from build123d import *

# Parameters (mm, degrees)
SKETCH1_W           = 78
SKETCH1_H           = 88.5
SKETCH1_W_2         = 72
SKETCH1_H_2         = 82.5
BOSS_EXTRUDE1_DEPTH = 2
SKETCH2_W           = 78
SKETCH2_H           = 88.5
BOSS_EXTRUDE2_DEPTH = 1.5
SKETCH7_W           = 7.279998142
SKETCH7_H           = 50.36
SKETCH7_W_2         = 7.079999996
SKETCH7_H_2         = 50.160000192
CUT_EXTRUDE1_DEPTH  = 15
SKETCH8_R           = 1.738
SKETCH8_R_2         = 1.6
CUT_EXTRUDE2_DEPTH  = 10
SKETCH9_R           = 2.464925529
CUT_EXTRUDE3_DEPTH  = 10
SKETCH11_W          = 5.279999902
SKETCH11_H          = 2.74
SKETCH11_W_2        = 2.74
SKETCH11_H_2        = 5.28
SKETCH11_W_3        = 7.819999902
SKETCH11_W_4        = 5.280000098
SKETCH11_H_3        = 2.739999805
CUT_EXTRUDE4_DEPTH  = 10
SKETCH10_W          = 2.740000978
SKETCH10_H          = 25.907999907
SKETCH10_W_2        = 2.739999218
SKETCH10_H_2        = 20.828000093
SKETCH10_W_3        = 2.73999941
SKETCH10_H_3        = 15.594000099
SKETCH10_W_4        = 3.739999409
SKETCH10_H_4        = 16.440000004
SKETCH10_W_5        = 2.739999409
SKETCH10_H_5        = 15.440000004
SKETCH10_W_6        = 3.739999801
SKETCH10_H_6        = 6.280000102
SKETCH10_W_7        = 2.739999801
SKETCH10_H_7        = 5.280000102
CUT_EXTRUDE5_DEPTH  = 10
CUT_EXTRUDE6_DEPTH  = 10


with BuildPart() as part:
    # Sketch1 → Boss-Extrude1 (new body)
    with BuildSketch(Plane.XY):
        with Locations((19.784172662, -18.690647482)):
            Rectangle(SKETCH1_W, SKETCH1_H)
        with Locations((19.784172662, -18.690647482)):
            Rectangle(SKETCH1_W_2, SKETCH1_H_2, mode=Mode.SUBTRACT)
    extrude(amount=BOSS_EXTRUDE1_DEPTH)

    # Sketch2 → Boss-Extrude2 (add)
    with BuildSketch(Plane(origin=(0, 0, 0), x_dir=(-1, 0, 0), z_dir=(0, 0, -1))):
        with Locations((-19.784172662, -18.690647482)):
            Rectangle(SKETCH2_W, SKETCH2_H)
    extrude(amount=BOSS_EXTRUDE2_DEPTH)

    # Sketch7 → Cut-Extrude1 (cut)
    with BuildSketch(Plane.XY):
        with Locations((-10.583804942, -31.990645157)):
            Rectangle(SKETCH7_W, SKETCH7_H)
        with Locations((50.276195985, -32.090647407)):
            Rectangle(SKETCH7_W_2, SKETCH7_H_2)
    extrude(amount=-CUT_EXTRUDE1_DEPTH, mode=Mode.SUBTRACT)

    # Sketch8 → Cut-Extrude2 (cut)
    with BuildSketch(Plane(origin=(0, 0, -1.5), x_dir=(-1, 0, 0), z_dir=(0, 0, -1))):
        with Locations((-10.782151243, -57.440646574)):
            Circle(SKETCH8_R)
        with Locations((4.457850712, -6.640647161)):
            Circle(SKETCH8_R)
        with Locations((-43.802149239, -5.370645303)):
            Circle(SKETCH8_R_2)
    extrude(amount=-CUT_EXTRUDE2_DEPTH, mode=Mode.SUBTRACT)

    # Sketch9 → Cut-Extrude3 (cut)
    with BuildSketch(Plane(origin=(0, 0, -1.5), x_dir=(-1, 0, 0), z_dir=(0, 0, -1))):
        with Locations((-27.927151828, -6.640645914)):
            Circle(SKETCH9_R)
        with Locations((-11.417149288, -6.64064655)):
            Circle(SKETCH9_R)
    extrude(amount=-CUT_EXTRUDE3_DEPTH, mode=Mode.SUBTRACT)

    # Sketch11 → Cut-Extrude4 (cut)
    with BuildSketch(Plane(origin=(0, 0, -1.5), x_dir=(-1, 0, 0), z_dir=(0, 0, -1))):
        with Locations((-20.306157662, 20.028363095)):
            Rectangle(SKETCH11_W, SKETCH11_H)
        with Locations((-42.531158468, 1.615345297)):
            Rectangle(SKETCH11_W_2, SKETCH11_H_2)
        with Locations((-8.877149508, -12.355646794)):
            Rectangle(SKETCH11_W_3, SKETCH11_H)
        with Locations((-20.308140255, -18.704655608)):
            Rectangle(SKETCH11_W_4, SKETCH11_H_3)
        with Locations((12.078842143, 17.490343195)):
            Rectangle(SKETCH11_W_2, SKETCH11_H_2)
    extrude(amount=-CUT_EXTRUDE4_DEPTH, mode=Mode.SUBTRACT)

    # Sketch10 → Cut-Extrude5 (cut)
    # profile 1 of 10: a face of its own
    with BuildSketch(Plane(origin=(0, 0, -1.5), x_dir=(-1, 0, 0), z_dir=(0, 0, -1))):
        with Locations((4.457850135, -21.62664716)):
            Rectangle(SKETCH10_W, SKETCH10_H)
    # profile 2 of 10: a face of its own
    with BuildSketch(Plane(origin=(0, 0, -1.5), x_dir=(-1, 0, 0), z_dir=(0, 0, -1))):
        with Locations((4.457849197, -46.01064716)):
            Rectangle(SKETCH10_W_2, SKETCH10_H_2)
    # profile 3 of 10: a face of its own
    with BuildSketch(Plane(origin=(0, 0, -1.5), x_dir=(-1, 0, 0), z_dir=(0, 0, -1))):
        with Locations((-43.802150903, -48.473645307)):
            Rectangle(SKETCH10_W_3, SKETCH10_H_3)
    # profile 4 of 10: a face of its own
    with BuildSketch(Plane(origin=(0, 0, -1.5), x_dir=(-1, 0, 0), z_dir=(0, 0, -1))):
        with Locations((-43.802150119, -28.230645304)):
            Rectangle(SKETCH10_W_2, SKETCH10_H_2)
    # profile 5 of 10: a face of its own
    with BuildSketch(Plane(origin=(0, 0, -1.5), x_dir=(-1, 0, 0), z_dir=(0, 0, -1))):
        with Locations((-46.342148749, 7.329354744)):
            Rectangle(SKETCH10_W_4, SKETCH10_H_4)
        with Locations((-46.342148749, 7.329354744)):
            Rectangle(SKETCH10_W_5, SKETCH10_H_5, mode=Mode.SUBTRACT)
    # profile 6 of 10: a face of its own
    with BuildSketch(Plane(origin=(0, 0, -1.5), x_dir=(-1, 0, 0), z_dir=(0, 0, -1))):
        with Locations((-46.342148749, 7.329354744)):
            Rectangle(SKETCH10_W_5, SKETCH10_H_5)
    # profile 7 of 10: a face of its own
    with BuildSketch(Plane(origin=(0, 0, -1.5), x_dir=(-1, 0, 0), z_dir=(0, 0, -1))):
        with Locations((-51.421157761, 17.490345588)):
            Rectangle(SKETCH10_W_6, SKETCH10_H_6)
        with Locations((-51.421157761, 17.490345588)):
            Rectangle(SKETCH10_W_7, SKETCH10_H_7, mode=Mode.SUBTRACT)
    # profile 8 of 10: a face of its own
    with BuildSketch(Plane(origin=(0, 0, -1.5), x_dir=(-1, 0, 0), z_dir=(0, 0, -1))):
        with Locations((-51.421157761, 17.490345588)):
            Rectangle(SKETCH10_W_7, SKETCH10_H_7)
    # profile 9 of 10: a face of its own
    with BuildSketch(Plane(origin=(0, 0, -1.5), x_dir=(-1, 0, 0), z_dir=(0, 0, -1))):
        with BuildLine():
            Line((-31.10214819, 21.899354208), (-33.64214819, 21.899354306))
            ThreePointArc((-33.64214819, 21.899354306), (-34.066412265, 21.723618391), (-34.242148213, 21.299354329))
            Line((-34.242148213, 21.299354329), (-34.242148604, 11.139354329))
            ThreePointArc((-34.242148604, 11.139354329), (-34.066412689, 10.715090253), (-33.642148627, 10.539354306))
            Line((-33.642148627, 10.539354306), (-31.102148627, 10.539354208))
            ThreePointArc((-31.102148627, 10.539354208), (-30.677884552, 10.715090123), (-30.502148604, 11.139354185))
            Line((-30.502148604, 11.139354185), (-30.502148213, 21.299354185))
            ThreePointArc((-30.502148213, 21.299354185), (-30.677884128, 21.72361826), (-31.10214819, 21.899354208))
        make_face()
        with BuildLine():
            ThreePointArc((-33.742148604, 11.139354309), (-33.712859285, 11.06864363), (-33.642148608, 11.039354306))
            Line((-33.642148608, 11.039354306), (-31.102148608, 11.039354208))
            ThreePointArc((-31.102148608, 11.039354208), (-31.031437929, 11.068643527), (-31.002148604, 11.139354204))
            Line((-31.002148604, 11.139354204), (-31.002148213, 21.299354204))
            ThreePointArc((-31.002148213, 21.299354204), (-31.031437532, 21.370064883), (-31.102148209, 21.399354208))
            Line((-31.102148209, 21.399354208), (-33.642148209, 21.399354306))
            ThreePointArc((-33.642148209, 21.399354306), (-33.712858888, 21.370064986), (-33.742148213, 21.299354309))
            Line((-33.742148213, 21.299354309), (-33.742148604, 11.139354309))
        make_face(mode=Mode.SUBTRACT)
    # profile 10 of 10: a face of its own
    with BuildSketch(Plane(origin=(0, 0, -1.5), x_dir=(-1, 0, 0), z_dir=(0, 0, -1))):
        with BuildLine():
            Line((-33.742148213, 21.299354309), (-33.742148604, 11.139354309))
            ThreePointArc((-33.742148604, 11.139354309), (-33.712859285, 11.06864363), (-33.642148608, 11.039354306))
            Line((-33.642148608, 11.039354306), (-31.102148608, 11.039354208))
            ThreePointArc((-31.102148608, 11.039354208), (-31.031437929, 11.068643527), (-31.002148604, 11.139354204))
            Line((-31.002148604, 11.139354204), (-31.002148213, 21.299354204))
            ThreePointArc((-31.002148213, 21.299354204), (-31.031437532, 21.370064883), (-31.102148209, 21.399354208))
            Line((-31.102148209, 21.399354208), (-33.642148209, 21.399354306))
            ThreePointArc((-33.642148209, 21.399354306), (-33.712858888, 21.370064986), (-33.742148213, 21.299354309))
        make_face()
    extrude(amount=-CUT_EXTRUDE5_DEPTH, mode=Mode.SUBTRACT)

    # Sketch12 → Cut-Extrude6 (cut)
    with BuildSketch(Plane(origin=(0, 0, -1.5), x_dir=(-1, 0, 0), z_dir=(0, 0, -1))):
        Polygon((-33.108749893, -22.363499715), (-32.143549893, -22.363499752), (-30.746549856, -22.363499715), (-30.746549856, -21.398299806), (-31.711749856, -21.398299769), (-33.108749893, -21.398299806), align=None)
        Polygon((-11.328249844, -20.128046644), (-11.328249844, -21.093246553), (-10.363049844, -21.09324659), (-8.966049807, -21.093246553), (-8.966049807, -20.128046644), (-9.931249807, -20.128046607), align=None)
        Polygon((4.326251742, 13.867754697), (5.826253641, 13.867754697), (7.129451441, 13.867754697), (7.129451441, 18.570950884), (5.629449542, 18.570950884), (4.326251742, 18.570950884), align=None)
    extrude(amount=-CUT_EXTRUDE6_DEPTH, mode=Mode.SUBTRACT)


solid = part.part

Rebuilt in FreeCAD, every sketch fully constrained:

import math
import FreeCAD as App
import Part
import Sketcher

doc = App.newDocument("Part")
body = doc.addObject("PartDesign::Body", "Body")

# Sketch on XY plane
sketch1 = doc.addObject("Sketcher::SketchObject", "Sketch")
body.addObject(sketch1)
sketch1.AttachmentSupport = (doc.XY_Plane, [""])
sketch1.MapMode = "FlatFace"
sketch1.addGeometry([
    Part.LineSegment(App.Vector(-19, 26, 0), App.Vector(-19, -63, 0)),  # 0
    Part.LineSegment(App.Vector(-19, -63, 0), App.Vector(59, -63, 0)),  # 1
    Part.LineSegment(App.Vector(59, -63, 0), App.Vector(59, 26, 0)),  # 2
    Part.LineSegment(App.Vector(59, 26, 0), App.Vector(-19, 26, 0)),  # 3
    Part.LineSegment(App.Vector(56, -60, 0), App.Vector(-16, -60, 0)),  # 4
    Part.LineSegment(App.Vector(-16, -60, 0), App.Vector(-16, 23, 0)),  # 5
    Part.LineSegment(App.Vector(-16, 23, 0), App.Vector(56, 23, 0)),  # 6
    Part.LineSegment(App.Vector(56, 23, 0), App.Vector(56, -60, 0)),  # 7
], False)
sketch1.addConstraint([
    Sketcher.Constraint("Coincident", 0, 2, 1, 1),
    Sketcher.Constraint("Coincident", 1, 2, 2, 1),
    Sketcher.Constraint("Coincident", 2, 2, 3, 1),
    Sketcher.Constraint("Coincident", 3, 2, 0, 1),
    Sketcher.Constraint("Coincident", 4, 2, 5, 1),
    Sketcher.Constraint("Coincident", 5, 2, 6, 1),
    Sketcher.Constraint("Coincident", 6, 2, 7, 1),
    Sketcher.Constraint("Coincident", 7, 2, 4, 1),
    Sketcher.Constraint("Vertical", 0),
    Sketcher.Constraint("Horizontal", 1),
    Sketcher.Constraint("Vertical", 2),
    Sketcher.Constraint("Horizontal", 3),
    Sketcher.Constraint("Horizontal", 4),
    Sketcher.Constraint("Vertical", 5),
    Sketcher.Constraint("Horizontal", 6),
    Sketcher.Constraint("Vertical", 7),
    Sketcher.Constraint("DistanceX", 1, 1, 1, 2, 78.0),
    Sketcher.Constraint("DistanceX", 4, 2, 4, 1, 72.0),
    Sketcher.Constraint("DistanceY", 0, 2, 0, 1, 88.5),
    Sketcher.Constraint("DistanceY", 5, 1, 5, 2, 82.5),
    Sketcher.Constraint("DistanceX", 0, 2, 4, 2, 3.0),
    Sketcher.Constraint("DistanceY", 0, 2, 4, 2, 3.0),
    Sketcher.Constraint("DistanceX", 0, 2, -1, 1, 19.215827),
    Sketcher.Constraint("DistanceY", 0, 2, -1, 1, 62.940647),
])
pad1 = doc.addObject("PartDesign::Pad", "Pad")
body.addObject(pad1)
pad1.Profile = sketch1
pad1.Length = 2

# Sketch on XY plane
sketch2 = doc.addObject("Sketcher::SketchObject", "Sketch001")
body.addObject(sketch2)
sketch2.AttachmentSupport = (doc.XY_Plane, [""])
sketch2.MapMode = "FlatFace"
sketch2.addGeometry([
    Part.LineSegment(App.Vector(59, 26, 0), App.Vector(59, -63, 0)),
    Part.LineSegment(App.Vector(59, -63, 0), App.Vector(-19, -63, 0)),
    Part.LineSegment(App.Vector(-19, -63, 0), App.Vector(-19, 26, 0)),
    Part.LineSegment(App.Vector(-19, 26, 0), App.Vector(59, 26, 0)),
], False)
sketch2.addConstraint([
    Sketcher.Constraint("Coincident", 0, 2, 1, 1),
    Sketcher.Constraint("Coincident", 1, 2, 2, 1),
    Sketcher.Constraint("Coincident", 2, 2, 3, 1),
    Sketcher.Constraint("Coincident", 3, 2, 0, 1),
    Sketcher.Constraint("Vertical", 0),
    Sketcher.Constraint("Horizontal", 1),
    Sketcher.Constraint("Vertical", 2),
    Sketcher.Constraint("Horizontal", 3),
    Sketcher.Constraint("DistanceX", 1, 2, 1, 1, 78.0),
    Sketcher.Constraint("DistanceY", 0, 2, 0, 1, 88.5),
    Sketcher.Constraint("DistanceX", -1, 1, 0, 2, 58.784173),
    Sketcher.Constraint("DistanceY", 0, 2, -1, 1, 62.940647),
])
pad2 = doc.addObject("PartDesign::Pad", "Pad001")
body.addObject(pad2)
pad2.Profile = sketch2
pad2.Length = 1.5
pad2.Reversed = True

# Sketch on XY plane
sketch3 = doc.addObject("Sketcher::SketchObject", "Sketch002")
body.addObject(sketch3)
sketch3.AttachmentSupport = (doc.XY_Plane, [""])
sketch3.MapMode = "FlatFace"
sketch3.addGeometry([
    Part.LineSegment(App.Vector(-14, -7, 0), App.Vector(-14, -57, 0)),  # 0
    Part.LineSegment(App.Vector(-14, -57, 0), App.Vector(-7, -57, 0)),  # 1
    Part.LineSegment(App.Vector(-7, -57, 0), App.Vector(-7, -7, 0)),  # 2
    Part.LineSegment(App.Vector(-7, -7, 0), App.Vector(-14, -7, 0)),  # 3
    Part.LineSegment(App.Vector(47, -7, 0), App.Vector(47, -57, 0)),  # 4
    Part.LineSegment(App.Vector(47, -57, 0), App.Vector(54, -57, 0)),  # 5
    Part.LineSegment(App.Vector(54, -57, 0), App.Vector(54, -7, 0)),  # 6
    Part.LineSegment(App.Vector(54, -7, 0), App.Vector(47, -7, 0)),  # 7
], False)
sketch3.addConstraint([
    Sketcher.Constraint("Coincident", 0, 2, 1, 1),
    Sketcher.Constraint("Coincident", 1, 2, 2, 1),
    Sketcher.Constraint("Coincident", 2, 2, 3, 1),
    Sketcher.Constraint("Coincident", 3, 2, 0, 1),
    Sketcher.Constraint("Coincident", 4, 2, 5, 1),
    Sketcher.Constraint("Coincident", 5, 2, 6, 1),
    Sketcher.Constraint("Coincident", 6, 2, 7, 1),
    Sketcher.Constraint("Coincident", 7, 2, 4, 1),
    Sketcher.Constraint("Vertical", 0),
    Sketcher.Constraint("Horizontal", 1),
    Sketcher.Constraint("Vertical", 2),
    Sketcher.Constraint("Horizontal", 3),
    Sketcher.Constraint("Vertical", 4),
    Sketcher.Constraint("Horizontal", 5),
    Sketcher.Constraint("Vertical", 6),
    Sketcher.Constraint("Horizontal", 7),
    Sketcher.Constraint("DistanceX", 1, 1, 1, 2, 7.279998),
    Sketcher.Constraint("DistanceX", 5, 1, 5, 2, 7.08),
    Sketcher.Constraint("DistanceY", 0, 2, 0, 1, 50.36),
    Sketcher.Constraint("DistanceY", 4, 2, 4, 1, 50.16),
    Sketcher.Constraint("DistanceX", 1, 2, 4, 2, 53.680002),
    Sketcher.Constraint("DistanceX", 0, 2, -1, 1, 14.223804),
    Sketcher.Constraint("DistanceY", 0, 2, -1, 1, 57.170645),
    Sketcher.Constraint("DistanceY", 4, 2, -1, 1, 57.170648),
])
pocket1 = doc.addObject("PartDesign::Pocket", "Pocket")
body.addObject(pocket1)
pocket1.Profile = sketch3
pocket1.Length = 15

# Sketch on XY plane
sketch4 = doc.addObject("Sketcher::SketchObject", "Sketch003")
body.addObject(sketch4)
sketch4.AttachmentSupport = (doc.XY_Plane, [""])
sketch4.MapMode = "FlatFace"
sketch4.AttachmentOffset = App.Placement(App.Vector(0, 0, -1.5), App.Rotation())
sketch4.addGeometry([
    Part.Circle(App.Vector(10.8, -57.4, 0), App.Vector(0, 0, 1), 1.7),
    Part.Circle(App.Vector(-4.5, -6.6, 0), App.Vector(0, 0, 1), 1.7),
    Part.Circle(App.Vector(43.8, -5.4, 0), App.Vector(0, 0, 1), 1.6),
], False)
sketch4.addConstraint([
    Sketcher.Constraint("Equal", 0, 1),
    Sketcher.Constraint("Diameter", 2, 3.2),
    Sketcher.Constraint("Diameter", 0, 3.476),
    Sketcher.Constraint("DistanceY", 0, 3, 1, 3, 50.799999),
    Sketcher.Constraint("DistanceX", 1, 3, 0, 3, 15.240002),
    Sketcher.Constraint("DistanceX", 1, 3, 2, 3, 48.26),
    Sketcher.Constraint("DistanceY", 1, 3, 2, 3, 1.270002),
    Sketcher.Constraint("DistanceX", -1, 1, 0, 3, 10.782151),
    Sketcher.Constraint("DistanceY", 0, 3, -1, 1, 57.440647),
])
pocket2 = doc.addObject("PartDesign::Pocket", "Pocket001")
body.addObject(pocket2)
pocket2.Profile = sketch4
pocket2.Length = 10
pocket2.Reversed = True

# Sketch on XY plane
sketch5 = doc.addObject("Sketcher::SketchObject", "Sketch004")
body.addObject(sketch5)
sketch5.AttachmentSupport = (doc.XY_Plane, [""])
sketch5.MapMode = "FlatFace"
sketch5.AttachmentOffset = App.Placement(App.Vector(0, 0, -1.5), App.Rotation())
sketch5.addGeometry([
    Part.Circle(App.Vector(27.9, -6.6, 0), App.Vector(0, 0, 1), 2.5),
    Part.Circle(App.Vector(11.4, -6.6, 0), App.Vector(0, 0, 1), 2.5),
], False)
sketch5.addConstraint([
    Sketcher.Constraint("Equal", 0, 1),
    Sketcher.Constraint("Horizontal", 0, 3, 1, 3),
    Sketcher.Constraint("Diameter", 0, 4.929851),
    Sketcher.Constraint("DistanceX", -1, 1, 0, 3, 27.927152),
    Sketcher.Constraint("DistanceX", -1, 1, 1, 3, 11.417149),
    Sketcher.Constraint("DistanceY", 0, 3, -1, 1, 6.640646),
])
pocket3 = doc.addObject("PartDesign::Pocket", "Pocket002")
body.addObject(pocket3)
pocket3.Profile = sketch5
pocket3.Length = 10
pocket3.Reversed = True

# Sketch on XY plane
sketch6 = doc.addObject("Sketcher::SketchObject", "Sketch005")
body.addObject(sketch6)
sketch6.AttachmentSupport = (doc.XY_Plane, [""])
sketch6.MapMode = "FlatFace"
sketch6.AttachmentOffset = App.Placement(App.Vector(0, 0, -1.5), App.Rotation())
sketch6.addGeometry([
    Part.LineSegment(App.Vector(22.9, 21.4, 0), App.Vector(22.9, 18.7, 0)),  # 0
    Part.LineSegment(App.Vector(22.9, 18.7, 0), App.Vector(17.7, 18.7, 0)),  # 1
    Part.LineSegment(App.Vector(17.7, 18.7, 0), App.Vector(17.7, 21.4, 0)),  # 2
    Part.LineSegment(App.Vector(17.7, 21.4, 0), App.Vector(22.9, 21.4, 0)),  # 3
    Part.LineSegment(App.Vector(43.9, 4.3, 0), App.Vector(43.9, -1, 0)),  # 4
    Part.LineSegment(App.Vector(43.9, -1, 0), App.Vector(41.2, -1, 0)),  # 5
    Part.LineSegment(App.Vector(41.2, -1, 0), App.Vector(41.2, 4.3, 0)),  # 6
    Part.LineSegment(App.Vector(41.2, 4.3, 0), App.Vector(43.9, 4.3, 0)),  # 7
    Part.LineSegment(App.Vector(12.8, -11, 0), App.Vector(12.8, -13.7, 0)),  # 8
    Part.LineSegment(App.Vector(12.8, -13.7, 0), App.Vector(5, -13.7, 0)),  # 9
    Part.LineSegment(App.Vector(5, -13.7, 0), App.Vector(5, -11, 0)),  # 10
    Part.LineSegment(App.Vector(5, -11, 0), App.Vector(12.8, -11, 0)),  # 11
    Part.LineSegment(App.Vector(22.9, -17.3, 0), App.Vector(22.9, -20.1, 0)),  # 12
    Part.LineSegment(App.Vector(22.9, -20.1, 0), App.Vector(17.7, -20.1, 0)),  # 13
    Part.LineSegment(App.Vector(17.7, -20.1, 0), App.Vector(17.7, -17.3, 0)),  # 14
    Part.LineSegment(App.Vector(17.7, -17.3, 0), App.Vector(22.9, -17.3, 0)),  # 15
    Part.LineSegment(App.Vector(-10.7, 20.1, 0), App.Vector(-10.7, 14.9, 0)),  # 16
    Part.LineSegment(App.Vector(-10.7, 14.9, 0), App.Vector(-13.4, 14.9, 0)),  # 17
    Part.LineSegment(App.Vector(-13.4, 14.9, 0), App.Vector(-13.4, 20.1, 0)),  # 18
    Part.LineSegment(App.Vector(-13.4, 20.1, 0), App.Vector(-10.7, 20.1, 0)),  # 19
], False)
sketch6.addConstraint([
    Sketcher.Constraint("Coincident", 0, 2, 1, 1),
    Sketcher.Constraint("Coincident", 1, 2, 2, 1),
    Sketcher.Constraint("Coincident", 2, 2, 3, 1),
    Sketcher.Constraint("Coincident", 3, 2, 0, 1),
    Sketcher.Constraint("Coincident", 4, 2, 5, 1),
    Sketcher.Constraint("Coincident", 5, 2, 6, 1),
    Sketcher.Constraint("Coincident", 6, 2, 7, 1),
    Sketcher.Constraint("Coincident", 7, 2, 4, 1),
    Sketcher.Constraint("Coincident", 8, 2, 9, 1),
    Sketcher.Constraint("Coincident", 9, 2, 10, 1),
    Sketcher.Constraint("Coincident", 10, 2, 11, 1),
    Sketcher.Constraint("Coincident", 11, 2, 8, 1),
    Sketcher.Constraint("Coincident", 12, 2, 13, 1),
    Sketcher.Constraint("Coincident", 13, 2, 14, 1),
    Sketcher.Constraint("Coincident", 14, 2, 15, 1),
    Sketcher.Constraint("Coincident", 15, 2, 12, 1),
    Sketcher.Constraint("Coincident", 16, 2, 17, 1),
    Sketcher.Constraint("Coincident", 17, 2, 18, 1),
    Sketcher.Constraint("Coincident", 18, 2, 19, 1),
    Sketcher.Constraint("Coincident", 19, 2, 16, 1),
    Sketcher.Constraint("Vertical", 0),
    Sketcher.Constraint("Horizontal", 1),
    Sketcher.Constraint("Vertical", 2),
    Sketcher.Constraint("Horizontal", 3),
    Sketcher.Constraint("Vertical", 4),
    Sketcher.Constraint("Horizontal", 5),
    Sketcher.Constraint("Vertical", 6),
    Sketcher.Constraint("Horizontal", 7),
    Sketcher.Constraint("Vertical", 8),
    Sketcher.Constraint("Horizontal", 9),
    Sketcher.Constraint("Vertical", 10),
    Sketcher.Constraint("Horizontal", 11),
    Sketcher.Constraint("Vertical", 12),
    Sketcher.Constraint("Horizontal", 13),
    Sketcher.Constraint("Vertical", 14),
    Sketcher.Constraint("Horizontal", 15),
    Sketcher.Constraint("Vertical", 16),
    Sketcher.Constraint("Horizontal", 17),
    Sketcher.Constraint("Vertical", 18),
    Sketcher.Constraint("Horizontal", 19),
    Sketcher.Constraint("Equal", 3, 13),
    Sketcher.Constraint("Equal", 7, 17),
    Sketcher.Constraint("Equal", 19, 0),
    Sketcher.Constraint("Equal", 15, 4),
    Sketcher.Constraint("Equal", 2, 8),
    Sketcher.Constraint("Equal", 10, 12),
    Sketcher.Constraint("Equal", 6, 16),
    Sketcher.Constraint("DistanceX", 1, 2, 1, 1, 5.28),
    Sketcher.Constraint("DistanceX", 5, 2, 5, 1, 2.74),
    Sketcher.Constraint("DistanceX", 9, 2, 9, 1, 7.82),
    Sketcher.Constraint("DistanceY", 12, 2, 5, 2, 19.050001),
    Sketcher.Constraint("DistanceX", 0, 2, 4, 2, 20.955001),
    Sketcher.Constraint("DistanceX", 16, 2, 1, 2, 28.375),
    Sketcher.Constraint("DistanceX", -1, 1, 4, 2, 43.901158),
    Sketcher.Constraint("DistanceX", -1, 1, 8, 2, 12.787149),
    Sketcher.Constraint("DistanceX", -1, 1, 12, 2, 22.94814),
    Sketcher.Constraint("DistanceY", 8, 2, 1, 2, 32.38401),
    Sketcher.Constraint("DistanceY", 12, 2, 8, 2, 6.349009),
    Sketcher.Constraint("DistanceY", 16, 2, 1, 2, 3.80802),
    Sketcher.Constraint("DistanceY", -1, 1, 0, 2, 18.658363),
])
pocket4 = doc.addObject("PartDesign::Pocket", "Pocket003")
body.addObject(pocket4)
pocket4.Profile = sketch6
pocket4.Length = 10
pocket4.Reversed = True

# Sketch on XY plane
sketch7 = doc.addObject("Sketcher::SketchObject", "Sketch006")
body.addObject(sketch7)
sketch7.AttachmentSupport = (doc.XY_Plane, [""])
sketch7.MapMode = "FlatFace"
sketch7.AttachmentOffset = App.Placement(App.Vector(0, 0, -1.5), App.Rotation())
sketch7.addGeometry([
    Part.LineSegment(App.Vector(-3.1, -8.7, 0), App.Vector(-3.1, -34.6, 0)),  # 0
    Part.LineSegment(App.Vector(-3.1, -34.6, 0), App.Vector(-5.8, -34.6, 0)),  # 1
    Part.LineSegment(App.Vector(-5.8, -34.6, 0), App.Vector(-5.8, -8.7, 0)),  # 2
    Part.LineSegment(App.Vector(-5.8, -8.7, 0), App.Vector(-3.1, -8.7, 0)),  # 3
    Part.LineSegment(App.Vector(-3.1, -35.6, 0), App.Vector(-3.1, -56.4, 0)),  # 4
    Part.LineSegment(App.Vector(-3.1, -56.4, 0), App.Vector(-5.8, -56.4, 0)),  # 5
    Part.LineSegment(App.Vector(-5.8, -56.4, 0), App.Vector(-5.8, -35.6, 0)),  # 6
    Part.LineSegment(App.Vector(-5.8, -35.6, 0), App.Vector(-3.1, -35.6, 0)),  # 7
    Part.LineSegment(App.Vector(45.2, -40.7, 0), App.Vector(45.2, -56.3, 0)),  # 8
    Part.LineSegment(App.Vector(45.2, -56.3, 0), App.Vector(42.4, -56.3, 0)),  # 9
    Part.LineSegment(App.Vector(42.4, -56.3, 0), App.Vector(42.4, -40.7, 0)),  # 10
    Part.LineSegment(App.Vector(42.4, -40.7, 0), App.Vector(45.2, -40.7, 0)),  # 11
    Part.LineSegment(App.Vector(45.2, -17.8, 0), App.Vector(45.2, -38.6, 0)),  # 12
    Part.LineSegment(App.Vector(45.2, -38.6, 0), App.Vector(42.4, -38.6, 0)),  # 13
    Part.LineSegment(App.Vector(42.4, -38.6, 0), App.Vector(42.4, -17.8, 0)),  # 14
    Part.LineSegment(App.Vector(42.4, -17.8, 0), App.Vector(45.2, -17.8, 0)),  # 15
    Part.LineSegment(App.Vector(48.2, 15.5, 0), App.Vector(48.2, -0.9, 0)),  # 16
    Part.LineSegment(App.Vector(48.2, -0.9, 0), App.Vector(44.5, -0.9, 0)),  # 17
    Part.LineSegment(App.Vector(44.5, -0.9, 0), App.Vector(44.5, 15.5, 0)),  # 18
    Part.LineSegment(App.Vector(44.5, 15.5, 0), App.Vector(48.2, 15.5, 0)),  # 19
    Part.LineSegment(App.Vector(53.3, 20.6, 0), App.Vector(53.3, 14.4, 0)),  # 20
    Part.LineSegment(App.Vector(53.3, 14.4, 0), App.Vector(49.6, 14.4, 0)),  # 21
    Part.LineSegment(App.Vector(49.6, 14.4, 0), App.Vector(49.6, 20.6, 0)),  # 22
    Part.LineSegment(App.Vector(49.6, 20.6, 0), App.Vector(53.3, 20.6, 0)),  # 23
    Part.LineSegment(App.Vector(31.1, 21.9, 0), App.Vector(33.6, 21.9, 0)),  # 24
    Part.ArcOfCircle(Part.Circle(App.Vector(33.6, 21.3, 0), App.Vector(0, 0, 1), 0.6), math.radians(0), math.radians(90)),  # 25
    Part.LineSegment(App.Vector(34.2, 21.3, 0), App.Vector(34.2, 11.1, 0)),  # 26
    Part.ArcOfCircle(Part.Circle(App.Vector(33.6, 11.1, 0), App.Vector(0, 0, 1), 0.6), math.radians(-90), math.radians(0)),  # 27
    Part.LineSegment(App.Vector(33.6, 10.5, 0), App.Vector(31.1, 10.5, 0)),  # 28
    Part.ArcOfCircle(Part.Circle(App.Vector(31.1, 11.1, 0), App.Vector(0, 0, 1), 0.6), math.radians(-180), math.radians(-90)),  # 29
    Part.LineSegment(App.Vector(30.5, 11.1, 0), App.Vector(30.5, 21.3, 0)),  # 30
    Part.ArcOfCircle(Part.Circle(App.Vector(31.1, 21.3, 0), App.Vector(0, 0, 1), 0.6), math.radians(90), math.radians(180)),  # 31
], False)
sketch7.addConstraint([
    Sketcher.Constraint("Coincident", 0, 2, 1, 1),
    Sketcher.Constraint("Coincident", 1, 2, 2, 1),
    Sketcher.Constraint("Coincident", 2, 2, 3, 1),
    Sketcher.Constraint("Coincident", 3, 2, 0, 1),
    Sketcher.Constraint("Coincident", 4, 2, 5, 1),
    Sketcher.Constraint("Coincident", 5, 2, 6, 1),
    Sketcher.Constraint("Coincident", 6, 2, 7, 1),
    Sketcher.Constraint("Coincident", 7, 2, 4, 1),
    Sketcher.Constraint("Coincident", 8, 2, 9, 1),
    Sketcher.Constraint("Coincident", 9, 2, 10, 1),
    Sketcher.Constraint("Coincident", 10, 2, 11, 1),
    Sketcher.Constraint("Coincident", 11, 2, 8, 1),
    Sketcher.Constraint("Coincident", 12, 2, 13, 1),
    Sketcher.Constraint("Coincident", 13, 2, 14, 1),
    Sketcher.Constraint("Coincident", 14, 2, 15, 1),
    Sketcher.Constraint("Coincident", 15, 2, 12, 1),
    Sketcher.Constraint("Coincident", 16, 2, 17, 1),
    Sketcher.Constraint("Coincident", 17, 2, 18, 1),
    Sketcher.Constraint("Coincident", 18, 2, 19, 1),
    Sketcher.Constraint("Coincident", 19, 2, 16, 1),
    Sketcher.Constraint("Coincident", 20, 2, 21, 1),
    Sketcher.Constraint("Coincident", 21, 2, 22, 1),
    Sketcher.Constraint("Coincident", 22, 2, 23, 1),
    Sketcher.Constraint("Coincident", 23, 2, 20, 1),
    Sketcher.Constraint("Tangent", 24, 2, 25, 2),
    Sketcher.Constraint("Tangent", 25, 1, 26, 1),
    Sketcher.Constraint("Tangent", 26, 2, 27, 2),
    Sketcher.Constraint("Tangent", 27, 1, 28, 1),
    Sketcher.Constraint("Tangent", 28, 2, 29, 2),
    Sketcher.Constraint("Tangent", 29, 1, 30, 1),
    Sketcher.Constraint("Tangent", 30, 2, 31, 2),
    Sketcher.Constraint("Tangent", 31, 1, 24, 1),
    Sketcher.Constraint("Vertical", 0),
    Sketcher.Constraint("Horizontal", 1),
    Sketcher.Constraint("Vertical", 2),
    Sketcher.Constraint("Horizontal", 3),
    Sketcher.Constraint("Vertical", 4),
    Sketcher.Constraint("Horizontal", 5),
    Sketcher.Constraint("Vertical", 6),
    Sketcher.Constraint("Horizontal", 7),
    Sketcher.Constraint("Vertical", 8),
    Sketcher.Constraint("Horizontal", 9),
    Sketcher.Constraint("Vertical", 10),
    Sketcher.Constraint("Horizontal", 11),
    Sketcher.Constraint("Vertical", 12),
    Sketcher.Constraint("Horizontal", 13),
    Sketcher.Constraint("Vertical", 14),
    Sketcher.Constraint("Horizontal", 15),
    Sketcher.Constraint("Vertical", 16),
    Sketcher.Constraint("Horizontal", 17),
    Sketcher.Constraint("Vertical", 18),
    Sketcher.Constraint("Horizontal", 19),
    Sketcher.Constraint("Vertical", 20),
    Sketcher.Constraint("Horizontal", 21),
    Sketcher.Constraint("Vertical", 22),
    Sketcher.Constraint("Horizontal", 23),
    Sketcher.Constraint("Horizontal", 24),
    Sketcher.Constraint("Vertical", 26),
    Sketcher.Constraint("Horizontal", 28),
    Sketcher.Constraint("Vertical", 30),
    Sketcher.Constraint("Equal", 25, 27),
    Sketcher.Constraint("Equal", 27, 29),
    Sketcher.Constraint("Equal", 29, 31),
    Sketcher.Constraint("Vertical", 3, 2, 4, 2),
    Sketcher.Constraint("Vertical", 2, 2, 5, 2),
    Sketcher.Constraint("Vertical", 11, 2, 12, 2),
    Sketcher.Constraint("Vertical", 10, 2, 13, 2),
    Sketcher.Constraint("Equal", 7, 9),
    Sketcher.Constraint("Equal", 19, 21),
    Sketcher.Constraint("Equal", 6, 12),
    Sketcher.Constraint("Radius", 25, 0.6),
    Sketcher.Constraint("DistanceX", 5, 2, 8, 2, 50.999999),
    Sketcher.Constraint("DistanceX", 1, 2, 1, 1, 2.740001),
    Sketcher.Constraint("DistanceX", 17, 2, 17, 1, 3.739999),
    Sketcher.Constraint("DistanceX", 24, 1, 24, 2, 2.54),
    Sketcher.Constraint("DistanceY", 16, 2, 16, 1, 16.44),
    Sketcher.Constraint("DistanceY", 20, 2, 20, 1, 6.28),
    Sketcher.Constraint("DistanceY", 26, 2, 26, 1, 10.16),
    Sketcher.Constraint("DistanceX", 17, 2, 15, 2, 0.700001),
    Sketcher.Constraint("DistanceY", 0, 2, 0, 1, 25.908),
    Sketcher.Constraint("DistanceY", 4, 2, 4, 1, 20.828),
    Sketcher.Constraint("DistanceY", 8, 2, 8, 1, 15.594),
    Sketcher.Constraint("DistanceX", 0, 2, 29, 3, 34.189998),
    Sketcher.Constraint("DistanceY", 0, 2, 29, 3, 45.720001),
    Sketcher.Constraint("DistanceY", 8, 2, 0, 2, 21.689998),
    Sketcher.Constraint("DistanceY", 10, 2, 7, 2, 5.079998),
    Sketcher.Constraint("DistanceY", 10, 2, 14, 2, 22.86),
    Sketcher.Constraint("DistanceY", 16, 2, 27, 3, 12.03),
    Sketcher.Constraint("DistanceX", -1, 1, 25, 3, 33.642148),
    Sketcher.Constraint("DistanceX", 19, 2, 20, 2, 5.079009),
    Sketcher.Constraint("DistanceY", 20, 2, 19, 2, 1.199009),
    Sketcher.Constraint("DistanceY", -1, 1, 25, 3, 21.299354),
])
pocket5 = doc.addObject("PartDesign::Pocket", "Pocket004")
body.addObject(pocket5)
pocket5.Profile = sketch7
pocket5.Length = 10
pocket5.Reversed = True

# Sketch on XY plane
sketch8 = doc.addObject("Sketcher::SketchObject", "Sketch007")
body.addObject(sketch8)
sketch8.AttachmentSupport = (doc.XY_Plane, [""])
sketch8.MapMode = "FlatFace"
sketch8.AttachmentOffset = App.Placement(App.Vector(0, 0, -1.5), App.Rotation())
sketch8.addGeometry([
    Part.LineSegment(App.Vector(33.1, -22.4, 0), App.Vector(32.1, -22.4, 0)),  # 0
    Part.LineSegment(App.Vector(32.1, -22.4, 0), App.Vector(30.7, -22.4, 0)),  # 1
    Part.LineSegment(App.Vector(30.7, -22.4, 0), App.Vector(30.7, -21.4, 0)),  # 2
    Part.LineSegment(App.Vector(30.7, -21.4, 0), App.Vector(31.7, -21.4, 0)),  # 3
    Part.LineSegment(App.Vector(31.7, -21.4, 0), App.Vector(33.1, -21.4, 0)),  # 4
    Part.LineSegment(App.Vector(33.1, -21.4, 0), App.Vector(33.1, -22.4, 0)),  # 5
    Part.LineSegment(App.Vector(11.3, -20.1, 0), App.Vector(11.3, -21.1, 0)),  # 6
    Part.LineSegment(App.Vector(11.3, -21.1, 0), App.Vector(10.4, -21.1, 0)),  # 7
    Part.LineSegment(App.Vector(10.4, -21.1, 0), App.Vector(9, -21.1, 0)),  # 8
    Part.LineSegment(App.Vector(9, -21.1, 0), App.Vector(9, -20.1, 0)),  # 9
    Part.LineSegment(App.Vector(9, -20.1, 0), App.Vector(9.9, -20.1, 0)),  # 10
    Part.LineSegment(App.Vector(9.9, -20.1, 0), App.Vector(11.3, -20.1, 0)),  # 11
    Part.LineSegment(App.Vector(-4.3, 13.9, 0), App.Vector(-7.1, 13.9, 0)),  # 12
    Part.LineSegment(App.Vector(-7.1, 13.9, 0), App.Vector(-7.1, 18.6, 0)),  # 13
    Part.LineSegment(App.Vector(-7.1, 18.6, 0), App.Vector(-4.3, 18.6, 0)),  # 14
    Part.LineSegment(App.Vector(-4.3, 18.6, 0), App.Vector(-4.3, 13.9, 0)),  # 15
], False)
sketch8.addConstraint([
    Sketcher.Constraint("Coincident", 0, 2, 1, 1),
    Sketcher.Constraint("Coincident", 1, 2, 2, 1),
    Sketcher.Constraint("Coincident", 2, 2, 3, 1),
    Sketcher.Constraint("Coincident", 3, 2, 4, 1),
    Sketcher.Constraint("Coincident", 4, 2, 5, 1),
    Sketcher.Constraint("Coincident", 5, 2, 0, 1),
    Sketcher.Constraint("Coincident", 6, 2, 7, 1),
    Sketcher.Constraint("Coincident", 7, 2, 8, 1),
    Sketcher.Constraint("Coincident", 8, 2, 9, 1),
    Sketcher.Constraint("Coincident", 9, 2, 10, 1),
    Sketcher.Constraint("Coincident", 10, 2, 11, 1),
    Sketcher.Constraint("Coincident", 11, 2, 6, 1),
    Sketcher.Constraint("Coincident", 12, 2, 13, 1),
    Sketcher.Constraint("Coincident", 13, 2, 14, 1),
    Sketcher.Constraint("Coincident", 14, 2, 15, 1),
    Sketcher.Constraint("Coincident", 15, 2, 12, 1),
    Sketcher.Constraint("Horizontal", 0),
    Sketcher.Constraint("Horizontal", 1),
    Sketcher.Constraint("Vertical", 2),
    Sketcher.Constraint("Horizontal", 3),
    Sketcher.Constraint("Horizontal", 4),
    Sketcher.Constraint("Vertical", 5),
    Sketcher.Constraint("Vertical", 6),
    Sketcher.Constraint("Horizontal", 7),
    Sketcher.Constraint("Horizontal", 8),
    Sketcher.Constraint("Vertical", 9),
    Sketcher.Constraint("Horizontal", 10),
    Sketcher.Constraint("Horizontal", 11),
    Sketcher.Constraint("Horizontal", 12),
    Sketcher.Constraint("Vertical", 13),
    Sketcher.Constraint("Horizontal", 14),
    Sketcher.Constraint("Vertical", 15),
    Sketcher.Constraint("Equal", 0, 3),
    Sketcher.Constraint("Equal", 3, 7),
    Sketcher.Constraint("Equal", 4, 8),
    Sketcher.Constraint("Equal", 7, 10),
    Sketcher.Constraint("Equal", 10, 2),
    Sketcher.Constraint("Equal", 5, 6),
    Sketcher.Constraint("DistanceX", 1, 2, 1, 1, 1.397),
    Sketcher.Constraint("DistanceX", 0, 2, 0, 1, 0.9652),
    Sketcher.Constraint("DistanceX", 12, 2, 12, 1, 2.8032),
    Sketcher.Constraint("DistanceY", 8, 2, 12, 2, 34.961001),
    Sketcher.Constraint("DistanceY", 0, 2, -1, 1, 22.3635),
    Sketcher.Constraint("DistanceX", 6, 2, 2, 2, 19.4183),
    Sketcher.Constraint("DistanceX", 12, 2, 9, 2, 16.095501),
    Sketcher.Constraint("DistanceY", 13, 1, 13, 2, 4.703196),
    Sketcher.Constraint("DistanceX", -1, 1, 0, 2, 32.14355),
    Sketcher.Constraint("DistanceY", -1, 1, 13, 2, 18.570951),
])
pocket6 = doc.addObject("PartDesign::Pocket", "Pocket005")
body.addObject(pocket6)
pocket6.Profile = sketch8
pocket6.Length = 10
pocket6.Reversed = True

doc.recompute()
